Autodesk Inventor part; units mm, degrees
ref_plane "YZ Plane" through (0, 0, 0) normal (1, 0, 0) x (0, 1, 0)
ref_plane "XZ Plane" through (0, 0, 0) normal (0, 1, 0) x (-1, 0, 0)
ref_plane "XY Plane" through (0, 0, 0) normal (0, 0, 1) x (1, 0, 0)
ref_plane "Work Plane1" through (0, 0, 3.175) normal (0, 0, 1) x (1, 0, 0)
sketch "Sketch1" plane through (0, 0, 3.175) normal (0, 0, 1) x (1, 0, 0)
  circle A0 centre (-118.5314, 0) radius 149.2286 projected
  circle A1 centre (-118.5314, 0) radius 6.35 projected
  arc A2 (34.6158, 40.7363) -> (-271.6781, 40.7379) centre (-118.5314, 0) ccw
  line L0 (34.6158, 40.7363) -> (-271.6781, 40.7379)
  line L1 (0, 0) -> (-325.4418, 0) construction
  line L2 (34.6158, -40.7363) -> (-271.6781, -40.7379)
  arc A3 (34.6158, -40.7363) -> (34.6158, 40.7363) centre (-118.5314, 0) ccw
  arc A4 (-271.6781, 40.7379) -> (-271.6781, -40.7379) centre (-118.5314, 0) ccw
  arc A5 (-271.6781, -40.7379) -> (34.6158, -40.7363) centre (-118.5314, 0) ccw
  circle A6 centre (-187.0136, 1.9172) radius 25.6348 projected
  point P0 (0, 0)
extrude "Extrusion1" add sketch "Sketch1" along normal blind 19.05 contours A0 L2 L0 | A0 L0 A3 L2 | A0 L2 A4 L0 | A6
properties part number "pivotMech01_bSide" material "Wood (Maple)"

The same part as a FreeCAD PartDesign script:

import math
import FreeCAD as App
import Part
import Sketcher

V = App.Vector
Q = App.Units.Quantity

doc = App.newDocument("Part")
params = doc.addObject("Spreadsheet::Sheet", "Params")
for row, (alias, value) in enumerate([
    ("sketch1_diameter", "0.5 in"),
    ("pad1_length", "0.75 in"),
], start=1):
    params.set(f"A{row}", alias)
    params.set(f"B{row}", "=" + value)
    params.setAlias(f"B{row}", alias)

body = doc.addObject("PartDesign::Body", "Body")

# Sketch on XY plane
sketch1 = doc.addObject("Sketcher::SketchObject", "Sketch")
body.addObject(sketch1)
sketch1.AttachmentSupport = (doc.XY_Plane, [""])
sketch1.MapMode = "FlatFace"
sketch1.AttachmentOffset = App.Placement(V(0, 0, 0.125 * 25.4), App.Rotation())
sketch1.addGeometry(Part.ArcOfCircle(Part.Circle(V(-119, 0, 0), V(0, 0, 1), 158), math.radians(-15), math.radians(15)), False)
sketch1.addGeometry(Part.LineSegment(V(35, 41, 0), V(-272, 41, 0)), False)
sketch1.addGeometry(Part.ArcOfCircle(Part.Circle(V(-119, 0, 0), V(0, 0, 1), 158), math.radians(165), math.radians(195)), False)
sketch1.addGeometry(Part.LineSegment(V(-272, -41, 0), V(35, -41, 0)), False)
sketch1.addGeometry(Part.Circle(V(-119, 0, 0), V(0, 0, 1), 6), False)
sketch1.addConstraint(Sketcher.Constraint("Coincident", 0, 2, 1, 1))
sketch1.addConstraint(Sketcher.Constraint("Coincident", 1, 2, 2, 1))
sketch1.addConstraint(Sketcher.Constraint("Coincident", 2, 2, 3, 1))
sketch1.addConstraint(Sketcher.Constraint("Coincident", 3, 2, 0, 1))
sketch1.addConstraint(Sketcher.Constraint("Coincident", 2, 3, 0, 3))
sketch1.addConstraint(Sketcher.Constraint("Coincident", 4, 3, 0, 3))
sketch1.addConstraint(Sketcher.Constraint("Equal", 0, 2))
sketch1.addConstraint(Sketcher.Constraint("Symmetric", 1, 2, 2, 2, -1))
sketch1.addConstraint(Sketcher.Constraint("Parallel", 1, 3))
sketch1.addConstraint(Sketcher.Constraint("Vertical", 0, 2, 3, 2))
sketch1.addConstraint(Sketcher.Constraint("Diameter", 4, Q("0.5 in")))
sketch1.addConstraint(Sketcher.Constraint("Radius", 0, 158.4724))
sketch1.addConstraint(Sketcher.Constraint("DistanceX", 1, 2, -1, 1, Q("10.696 in")))
sketch1.addConstraint(Sketcher.Constraint("DistanceX", 0, 3, -1, 1, Q("4.6666 in")))
sketch1.setExpression("Constraints[10]", "Params.sketch1_diameter")
pad1 = doc.addObject("PartDesign::Pad", "Pad")
body.addObject(pad1)
pad1.Profile = sketch1
pad1.setExpression("Length", "Params.pad1_length")

doc.recompute()
